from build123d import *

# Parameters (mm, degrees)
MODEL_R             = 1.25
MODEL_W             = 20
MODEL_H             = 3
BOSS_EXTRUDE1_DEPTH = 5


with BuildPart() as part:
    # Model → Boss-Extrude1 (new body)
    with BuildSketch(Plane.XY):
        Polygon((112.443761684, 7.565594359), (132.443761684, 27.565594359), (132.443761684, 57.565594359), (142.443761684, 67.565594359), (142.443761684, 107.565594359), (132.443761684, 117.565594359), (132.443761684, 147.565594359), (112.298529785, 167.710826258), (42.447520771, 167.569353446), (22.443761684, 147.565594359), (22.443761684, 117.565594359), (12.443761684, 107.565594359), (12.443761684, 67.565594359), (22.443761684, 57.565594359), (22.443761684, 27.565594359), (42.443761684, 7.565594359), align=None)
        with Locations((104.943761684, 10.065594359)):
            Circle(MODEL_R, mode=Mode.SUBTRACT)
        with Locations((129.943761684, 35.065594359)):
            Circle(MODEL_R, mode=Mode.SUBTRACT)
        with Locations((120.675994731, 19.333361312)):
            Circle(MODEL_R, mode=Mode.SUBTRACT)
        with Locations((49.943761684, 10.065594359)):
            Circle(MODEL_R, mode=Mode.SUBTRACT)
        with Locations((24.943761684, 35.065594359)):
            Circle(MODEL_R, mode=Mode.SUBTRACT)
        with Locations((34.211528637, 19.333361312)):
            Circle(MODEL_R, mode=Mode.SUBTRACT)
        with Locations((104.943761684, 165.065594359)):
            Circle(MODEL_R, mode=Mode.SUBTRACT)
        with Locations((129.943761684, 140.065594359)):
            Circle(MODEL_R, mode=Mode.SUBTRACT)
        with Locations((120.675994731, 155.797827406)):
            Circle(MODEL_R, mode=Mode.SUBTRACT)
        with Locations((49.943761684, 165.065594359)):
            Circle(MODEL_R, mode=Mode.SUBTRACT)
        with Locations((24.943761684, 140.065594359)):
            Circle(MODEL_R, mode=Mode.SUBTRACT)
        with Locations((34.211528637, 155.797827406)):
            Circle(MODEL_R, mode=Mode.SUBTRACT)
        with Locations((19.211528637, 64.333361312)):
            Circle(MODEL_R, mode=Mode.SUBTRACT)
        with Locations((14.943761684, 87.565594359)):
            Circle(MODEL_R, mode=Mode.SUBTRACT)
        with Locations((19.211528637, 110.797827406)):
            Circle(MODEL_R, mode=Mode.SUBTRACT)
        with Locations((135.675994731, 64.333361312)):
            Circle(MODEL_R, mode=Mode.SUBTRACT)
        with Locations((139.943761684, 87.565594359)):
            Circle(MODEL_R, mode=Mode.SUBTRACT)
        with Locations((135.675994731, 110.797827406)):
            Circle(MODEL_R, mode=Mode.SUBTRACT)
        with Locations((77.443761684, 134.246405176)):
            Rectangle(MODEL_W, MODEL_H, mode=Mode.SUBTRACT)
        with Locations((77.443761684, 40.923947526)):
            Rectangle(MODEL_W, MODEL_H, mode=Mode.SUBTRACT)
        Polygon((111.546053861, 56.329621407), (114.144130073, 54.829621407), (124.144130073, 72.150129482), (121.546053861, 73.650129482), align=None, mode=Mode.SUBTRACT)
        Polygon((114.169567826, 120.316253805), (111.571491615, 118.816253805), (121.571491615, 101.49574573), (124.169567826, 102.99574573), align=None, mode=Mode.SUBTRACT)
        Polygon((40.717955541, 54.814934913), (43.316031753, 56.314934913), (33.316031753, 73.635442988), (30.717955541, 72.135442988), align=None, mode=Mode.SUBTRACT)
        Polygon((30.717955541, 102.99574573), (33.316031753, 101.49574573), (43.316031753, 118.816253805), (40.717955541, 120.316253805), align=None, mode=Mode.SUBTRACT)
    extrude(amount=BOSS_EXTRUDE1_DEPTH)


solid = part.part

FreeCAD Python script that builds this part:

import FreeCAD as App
import Part
import Sketcher
from FreeCAD import Vector
Q = App.Units.Quantity

doc = App.newDocument("Part")
body = doc.addObject("PartDesign::Body", "Body")

# Sketch on XY plane
sketch1 = body.newObject("Sketcher::SketchObject", "Sketch")
sketch1.AttachmentSupport = (doc.getObject("XY_Plane"), [""])
sketch1.MapMode = "FlatFace"
sketch1.addGeometry([
    Part.LineSegment(Vector(112.4, 7.6, 0), Vector(132.4, 27.6, 0)),  # 0
    Part.LineSegment(Vector(132.4, 27.6, 0), Vector(132.4, 57.6, 0)),  # 1
    Part.LineSegment(Vector(132.4, 57.6, 0), Vector(142.4, 67.6, 0)),  # 2
    Part.LineSegment(Vector(142.4, 67.6, 0), Vector(142.4, 107.6, 0)),  # 3
    Part.LineSegment(Vector(142.4, 107.6, 0), Vector(132.4, 117.6, 0)),  # 4
    Part.LineSegment(Vector(132.4, 117.6, 0), Vector(132.4, 147.6, 0)),  # 5
    Part.LineSegment(Vector(132.4, 147.6, 0), Vector(112.3, 167.7, 0)),  # 6
    Part.LineSegment(Vector(112.3, 167.7, 0), Vector(42.4, 167.6, 0)),  # 7
    Part.LineSegment(Vector(42.4, 167.6, 0), Vector(22.4, 147.6, 0)),  # 8
    Part.LineSegment(Vector(22.4, 147.6, 0), Vector(22.4, 117.6, 0)),  # 9
    Part.LineSegment(Vector(22.4, 117.6, 0), Vector(12.4, 107.6, 0)),  # 10
    Part.LineSegment(Vector(12.4, 107.6, 0), Vector(12.4, 67.6, 0)),  # 11
    Part.LineSegment(Vector(12.4, 67.6, 0), Vector(22.4, 57.6, 0)),  # 12
    Part.LineSegment(Vector(22.4, 57.6, 0), Vector(22.4, 27.6, 0)),  # 13
    Part.LineSegment(Vector(22.4, 27.6, 0), Vector(42.4, 7.6, 0)),  # 14
    Part.LineSegment(Vector(42.4, 7.6, 0), Vector(112.4, 7.6, 0)),  # 15
    Part.Circle(Vector(34.2, 19.3, 0), Vector(0, 0, 1), 1.2),  # 16
    Part.Circle(Vector(24.9, 35.1, 0), Vector(0, 0, 1), 1.2),  # 17
    Part.Circle(Vector(49.9, 10.1, 0), Vector(0, 0, 1), 1.2),  # 18
    Part.LineSegment(Vector(87.4, 39.4, 0), Vector(67.4, 39.4, 0)),  # 19
    Part.LineSegment(Vector(67.4, 39.4, 0), Vector(67.4, 42.4, 0)),  # 20
    Part.LineSegment(Vector(67.4, 42.4, 0), Vector(87.4, 42.4, 0)),  # 21
    Part.LineSegment(Vector(87.4, 42.4, 0), Vector(87.4, 39.4, 0)),  # 22
    Part.Circle(Vector(19.2, 64.3, 0), Vector(0, 0, 1), 1.2),  # 23
    Part.LineSegment(Vector(43.3, 56.3, 0), Vector(40.7, 54.8, 0)),  # 24
    Part.LineSegment(Vector(40.7, 54.8, 0), Vector(30.7, 72.1, 0)),  # 25
    Part.LineSegment(Vector(30.7, 72.1, 0), Vector(33.3, 73.6, 0)),  # 26
    Part.LineSegment(Vector(33.3, 73.6, 0), Vector(43.3, 56.3, 0)),  # 27
    Part.Circle(Vector(104.9, 10.1, 0), Vector(0, 0, 1), 1.2),  # 28
    Part.Circle(Vector(120.7, 19.3, 0), Vector(0, 0, 1), 1.2),  # 29
    Part.Circle(Vector(129.9, 35.1, 0), Vector(0, 0, 1), 1.2),  # 30
    Part.LineSegment(Vector(114.1, 54.8, 0), Vector(111.5, 56.3, 0)),  # 31
    Part.LineSegment(Vector(111.5, 56.3, 0), Vector(121.5, 73.7, 0)),  # 32
    Part.LineSegment(Vector(121.5, 73.7, 0), Vector(124.1, 72.2, 0)),  # 33
    Part.LineSegment(Vector(124.1, 72.2, 0), Vector(114.1, 54.8, 0)),  # 34
    Part.Circle(Vector(135.7, 64.3, 0), Vector(0, 0, 1), 1.2),  # 35
    Part.Circle(Vector(14.9, 87.6, 0), Vector(0, 0, 1), 1.2),  # 36
    Part.Circle(Vector(19.2, 110.8, 0), Vector(0, 0, 1), 1.2),  # 37
    Part.LineSegment(Vector(33.3, 101.5, 0), Vector(30.7, 103, 0)),  # 38
    Part.LineSegment(Vector(30.7, 103, 0), Vector(40.7, 120.3, 0)),  # 39
    Part.LineSegment(Vector(40.7, 120.3, 0), Vector(43.3, 118.8, 0)),  # 40
    Part.LineSegment(Vector(43.3, 118.8, 0), Vector(33.3, 101.5, 0)),  # 41
    Part.Circle(Vector(24.9, 140.1, 0), Vector(0, 0, 1), 1.2),  # 42
    Part.Circle(Vector(34.2, 155.8, 0), Vector(0, 0, 1), 1.2),  # 43
    Part.LineSegment(Vector(87.4, 132.7, 0), Vector(67.4, 132.7, 0)),  # 44
    Part.LineSegment(Vector(67.4, 132.7, 0), Vector(67.4, 135.7, 0)),  # 45
    Part.LineSegment(Vector(67.4, 135.7, 0), Vector(87.4, 135.7, 0)),  # 46
    Part.LineSegment(Vector(87.4, 135.7, 0), Vector(87.4, 132.7, 0)),  # 47
    Part.Circle(Vector(49.9, 165.1, 0), Vector(0, 0, 1), 1.2),  # 48
    Part.Circle(Vector(139.9, 87.6, 0), Vector(0, 0, 1), 1.2),  # 49
    Part.LineSegment(Vector(111.6, 118.8, 0), Vector(114.2, 120.3, 0)),  # 50
    Part.LineSegment(Vector(114.2, 120.3, 0), Vector(124.2, 103, 0)),  # 51
    Part.LineSegment(Vector(124.2, 103, 0), Vector(121.6, 101.5, 0)),  # 52
    Part.LineSegment(Vector(121.6, 101.5, 0), Vector(111.6, 118.8, 0)),  # 53
    Part.Circle(Vector(135.7, 110.8, 0), Vector(0, 0, 1), 1.2),  # 54
    Part.Circle(Vector(104.9, 165.1, 0), Vector(0, 0, 1), 1.2),  # 55
    Part.Circle(Vector(129.9, 140.1, 0), Vector(0, 0, 1), 1.2),  # 56
    Part.Circle(Vector(120.7, 155.8, 0), Vector(0, 0, 1), 1.2),  # 57
], False)
sketch1.addConstraint([
    Sketcher.Constraint("Coincident", 0, 2, 1, 1),
    Sketcher.Constraint("Coincident", 1, 2, 2, 1),
    Sketcher.Constraint("Coincident", 2, 2, 3, 1),
    Sketcher.Constraint("Coincident", 3, 2, 4, 1),
    Sketcher.Constraint("Coincident", 4, 2, 5, 1),
    Sketcher.Constraint("Coincident", 5, 2, 6, 1),
    Sketcher.Constraint("Coincident", 6, 2, 7, 1),
    Sketcher.Constraint("Coincident", 7, 2, 8, 1),
    Sketcher.Constraint("Coincident", 8, 2, 9, 1),
    Sketcher.Constraint("Coincident", 9, 2, 10, 1),
    Sketcher.Constraint("Coincident", 10, 2, 11, 1),
    Sketcher.Constraint("Coincident", 11, 2, 12, 1),
    Sketcher.Constraint("Coincident", 12, 2, 13, 1),
    Sketcher.Constraint("Coincident", 13, 2, 14, 1),
    Sketcher.Constraint("Coincident", 14, 2, 15, 1),
    Sketcher.Constraint("Coincident", 15, 2, 0, 1),
    Sketcher.Constraint("Coincident", 19, 2, 20, 1),
    Sketcher.Constraint("Coincident", 20, 2, 21, 1),
    Sketcher.Constraint("Coincident", 21, 2, 22, 1),
    Sketcher.Constraint("Coincident", 22, 2, 19, 1),
    Sketcher.Constraint("Coincident", 24, 2, 25, 1),
    Sketcher.Constraint("Coincident", 25, 2, 26, 1),
    Sketcher.Constraint("Coincident", 26, 2, 27, 1),
    Sketcher.Constraint("Coincident", 27, 2, 24, 1),
    Sketcher.Constraint("Coincident", 31, 2, 32, 1),
    Sketcher.Constraint("Coincident", 32, 2, 33, 1),
    Sketcher.Constraint("Coincident", 33, 2, 34, 1),
    Sketcher.Constraint("Coincident", 34, 2, 31, 1),
    Sketcher.Constraint("Coincident", 38, 2, 39, 1),
    Sketcher.Constraint("Coincident", 39, 2, 40, 1),
    Sketcher.Constraint("Coincident", 40, 2, 41, 1),
    Sketcher.Constraint("Coincident", 41, 2, 38, 1),
    Sketcher.Constraint("Coincident", 44, 2, 45, 1),
    Sketcher.Constraint("Coincident", 45, 2, 46, 1),
    Sketcher.Constraint("Coincident", 46, 2, 47, 1),
    Sketcher.Constraint("Coincident", 47, 2, 44, 1),
    Sketcher.Constraint("Coincident", 50, 2, 51, 1),
    Sketcher.Constraint("Coincident", 51, 2, 52, 1),
    Sketcher.Constraint("Coincident", 52, 2, 53, 1),
    Sketcher.Constraint("Coincident", 53, 2, 50, 1),
    Sketcher.Constraint("Vertical", 1),
    Sketcher.Constraint("Vertical", 3),
    Sketcher.Constraint("Vertical", 5),
    Sketcher.Constraint("Vertical", 9),
    Sketcher.Constraint("Vertical", 11),
    Sketcher.Constraint("Vertical", 13),
    Sketcher.Constraint("Horizontal", 15),
    Sketcher.Constraint("Horizontal", 19),
    Sketcher.Constraint("Vertical", 20),
    Sketcher.Constraint("Horizontal", 21),
    Sketcher.Constraint("Vertical", 22),
    Sketcher.Constraint("Horizontal", 44),
    Sketcher.Constraint("Vertical", 45),
    Sketcher.Constraint("Horizontal", 46),
    Sketcher.Constraint("Vertical", 47),
    Sketcher.Constraint("Equal", 16, 17),
    Sketcher.Constraint("Equal", 17, 18),
    Sketcher.Constraint("Equal", 18, 23),
    Sketcher.Constraint("Equal", 23, 28),
    Sketcher.Constraint("Equal", 28, 29),
    Sketcher.Constraint("Equal", 29, 30),
    Sketcher.Constraint("Equal", 30, 35),
    Sketcher.Constraint("Equal", 35, 36),
    Sketcher.Constraint("Equal", 36, 37),
    Sketcher.Constraint("Equal", 37, 42),
    Sketcher.Constraint("Equal", 42, 43),
    Sketcher.Constraint("Equal", 43, 48),
    Sketcher.Constraint("Equal", 48, 49),
    Sketcher.Constraint("Equal", 49, 54),
    Sketcher.Constraint("Equal", 54, 55),
    Sketcher.Constraint("Equal", 55, 56),
    Sketcher.Constraint("Equal", 56, 57),
    Sketcher.Constraint("Parallel", 0, 2),
    Sketcher.Constraint("Perpendicular", 2, 4),
    Sketcher.Constraint("Parallel", 4, 6),
    Sketcher.Constraint("Perpendicular", 6, 8),
    Sketcher.Constraint("Parallel", 8, 10),
    Sketcher.Constraint("Perpendicular", 10, 12),
    Sketcher.Constraint("Parallel", 12, 14),
    Sketcher.Constraint("Perpendicular", 24, 25),
    Sketcher.Constraint("Perpendicular", 25, 26),
    Sketcher.Constraint("Perpendicular", 26, 27),
    Sketcher.Constraint("Perpendicular", 31, 32),
    Sketcher.Constraint("Perpendicular", 32, 33),
    Sketcher.Constraint("Perpendicular", 33, 34),
    Sketcher.Constraint("Perpendicular", 34, 38),
    Sketcher.Constraint("Perpendicular", 38, 39),
    Sketcher.Constraint("Perpendicular", 39, 40),
    Sketcher.Constraint("Perpendicular", 40, 41),
    Sketcher.Constraint("Perpendicular", 27, 50),
    Sketcher.Constraint("Perpendicular", 50, 51),
    Sketcher.Constraint("Perpendicular", 51, 52),
    Sketcher.Constraint("Perpendicular", 52, 53),
    Sketcher.Constraint("Horizontal", 18, 3, 28, 3),
    Sketcher.Constraint("Horizontal", 16, 3, 29, 3),
    Sketcher.Constraint("Horizontal", 17, 3, 30, 3),
    Sketcher.Constraint("Horizontal", 23, 3, 35, 3),
    Sketcher.Constraint("Horizontal", 36, 3, 49, 3),
    Sketcher.Constraint("Horizontal", 37, 3, 54, 3),
    Sketcher.Constraint("Horizontal", 48, 3, 55, 3),
    Sketcher.Constraint("Horizontal", 42, 3, 56, 3),
    Sketcher.Constraint("Horizontal", 43, 3, 57, 3),
    Sketcher.Constraint("Horizontal", 5, 2, 8, 2),
    Sketcher.Constraint("Horizontal", 4, 2, 9, 2),
    Sketcher.Constraint("Horizontal", 3, 2, 10, 2),
    Sketcher.Constraint("Horizontal", 2, 2, 11, 2),
    Sketcher.Constraint("Horizontal", 1, 2, 12, 2),
    Sketcher.Constraint("Horizontal", 0, 2, 13, 2),
    Sketcher.Constraint("Horizontal", 39, 2, 50, 2),
    Sketcher.Constraint("Horizontal", 38, 2, 51, 2),
    Sketcher.Constraint("Horizontal", 41, 2, 52, 2),
    Sketcher.Constraint("Vertical", 23, 3, 37, 3),
    Sketcher.Constraint("Vertical", 17, 3, 42, 3),
    Sketcher.Constraint("Vertical", 16, 3, 43, 3),
    Sketcher.Constraint("Vertical", 18, 3, 48, 3),
    Sketcher.Constraint("Vertical", 35, 3, 54, 3),
    Sketcher.Constraint("Vertical", 28, 3, 55, 3),
    Sketcher.Constraint("Vertical", 30, 3, 56, 3),
    Sketcher.Constraint("Vertical", 29, 3, 57, 3),
    Sketcher.Constraint("Vertical", 1, 2, 4, 2),
    Sketcher.Constraint("Vertical", 9, 2, 12, 2),
    Sketcher.Constraint("Vertical", 25, 2, 38, 2),
    Sketcher.Constraint("Vertical", 24, 2, 39, 2),
    Sketcher.Constraint("Vertical", 27, 2, 40, 2),
    Sketcher.Constraint("Vertical", 20, 2, 44, 2),
    Sketcher.Constraint("Vertical", 22, 2, 46, 2),
    Sketcher.Constraint("Equal", 1, 5),
    Sketcher.Constraint("Equal", 22, 45),
    Sketcher.Constraint("Equal", 26, 31),
    Sketcher.Constraint("Equal", 27, 32),
    Sketcher.Constraint("Equal", 33, 38),
    Sketcher.Constraint("Diameter", 16, 2.5),
    Sketcher.Constraint("DistanceX", 15, 1, 15, 2, 70.0),
    Sketcher.Constraint("DistanceX", 19, 2, 19, 1, 20.0),
    Sketcher.Constraint("DistanceY", 1, 1, 1, 2, 30.0),
    Sketcher.Constraint("DistanceY", 3, 1, 3, 2, 40.0),
    Sketcher.Constraint("DistanceY", 20, 1, 20, 2, 3.0),
    Sketcher.Constraint("Angle", 24, Q("-150 deg")),
    Sketcher.Constraint("Distance", 24, 3.0),
    Sketcher.Constraint("Distance", 25, 20.0),
    Sketcher.Constraint("DistanceX", 17, 3, 18, 3, 25.0),
    Sketcher.Constraint("DistanceY", 18, 3, 17, 3, 25.0),
    Sketcher.Constraint("DistanceX", 23, 3, 16, 3, 15.0),
    Sketcher.Constraint("DistanceY", 16, 3, 23, 3, 45.0),
    Sketcher.Constraint("DistanceX", 18, 3, 28, 3, 55.0),
    Sketcher.Constraint("DistanceX", 28, 3, 30, 3, 25.0),
    Sketcher.Constraint("DistanceX", 29, 3, 35, 3, 15.0),
    Sketcher.Constraint("DistanceX", 36, 3, 17, 3, 10.0),
    Sketcher.Constraint("DistanceY", 17, 3, 42, 3, 105.0),
    Sketcher.Constraint("DistanceY", 37, 3, 43, 3, 45.0),
    Sketcher.Constraint("DistanceY", 42, 3, 48, 3, 25.0),
    Sketcher.Constraint("DistanceX", 30, 3, 49, 3, 10.0),
    Sketcher.Constraint("DistanceY", 0, 2, 49, 3, 60.0),
    Sketcher.Constraint("DistanceX", 1, 2, 2, 2, 10.0),
    Sketcher.Constraint("DistanceX", 13, 2, 14, 2, 20.0),
    Sketcher.Constraint("DistanceX", 14, 2, 19, 2, 25.0),
    Sketcher.Constraint("DistanceY", 17, 3, 36, 3, 52.5),
    Sketcher.Constraint("DistanceX", 30, 3, 0, 2, 2.5),
    Sketcher.Constraint("DistanceY", 57, 3, 6, 2, 11.912999),
    Sketcher.Constraint("Distance", 6, 28.48966),
    Sketcher.Constraint("DistanceX", -1, 1, 16, 3, 34.211529),
    Sketcher.Constraint("DistanceY", -1, 1, 16, 3, 19.333361),
    Sketcher.Constraint("DistanceX", -1, 1, 17, 3, 24.943762),
    Sketcher.Constraint("DistanceX", -1, 1, 7, 2, 42.447521),
    Sketcher.Constraint("DistanceX", -1, 1, 26, 2, 33.316032),
    Sketcher.Constraint("DistanceY", -1, 1, 31, 2, 56.329621),
    Sketcher.Constraint("DistanceX", -1, 1, 33, 2, 124.14413),
    Sketcher.Constraint("DistanceX", -1, 1, 52, 2, 121.571492),
    Sketcher.Constraint("DistanceY", 24, 2, 12, 2, 2.750659),
    Sketcher.Constraint("DistanceY", 23, 3, 25, 2, 7.802082),
    Sketcher.Constraint("DistanceX", 31, 2, 35, 3, 24.129941),
    Sketcher.Constraint("DistanceY", 38, 2, 37, 3, 7.802082),
    Sketcher.Constraint("DistanceY", 40, 2, 44, 2, 13.930151),
    Sketcher.Constraint("DistanceY", -1, 1, 19, 2, 39.423948),
])
pad1 = body.newObject("PartDesign::Pad", "Pad")
pad1.Profile = sketch1
pad1.Length = 5

doc.recompute()
